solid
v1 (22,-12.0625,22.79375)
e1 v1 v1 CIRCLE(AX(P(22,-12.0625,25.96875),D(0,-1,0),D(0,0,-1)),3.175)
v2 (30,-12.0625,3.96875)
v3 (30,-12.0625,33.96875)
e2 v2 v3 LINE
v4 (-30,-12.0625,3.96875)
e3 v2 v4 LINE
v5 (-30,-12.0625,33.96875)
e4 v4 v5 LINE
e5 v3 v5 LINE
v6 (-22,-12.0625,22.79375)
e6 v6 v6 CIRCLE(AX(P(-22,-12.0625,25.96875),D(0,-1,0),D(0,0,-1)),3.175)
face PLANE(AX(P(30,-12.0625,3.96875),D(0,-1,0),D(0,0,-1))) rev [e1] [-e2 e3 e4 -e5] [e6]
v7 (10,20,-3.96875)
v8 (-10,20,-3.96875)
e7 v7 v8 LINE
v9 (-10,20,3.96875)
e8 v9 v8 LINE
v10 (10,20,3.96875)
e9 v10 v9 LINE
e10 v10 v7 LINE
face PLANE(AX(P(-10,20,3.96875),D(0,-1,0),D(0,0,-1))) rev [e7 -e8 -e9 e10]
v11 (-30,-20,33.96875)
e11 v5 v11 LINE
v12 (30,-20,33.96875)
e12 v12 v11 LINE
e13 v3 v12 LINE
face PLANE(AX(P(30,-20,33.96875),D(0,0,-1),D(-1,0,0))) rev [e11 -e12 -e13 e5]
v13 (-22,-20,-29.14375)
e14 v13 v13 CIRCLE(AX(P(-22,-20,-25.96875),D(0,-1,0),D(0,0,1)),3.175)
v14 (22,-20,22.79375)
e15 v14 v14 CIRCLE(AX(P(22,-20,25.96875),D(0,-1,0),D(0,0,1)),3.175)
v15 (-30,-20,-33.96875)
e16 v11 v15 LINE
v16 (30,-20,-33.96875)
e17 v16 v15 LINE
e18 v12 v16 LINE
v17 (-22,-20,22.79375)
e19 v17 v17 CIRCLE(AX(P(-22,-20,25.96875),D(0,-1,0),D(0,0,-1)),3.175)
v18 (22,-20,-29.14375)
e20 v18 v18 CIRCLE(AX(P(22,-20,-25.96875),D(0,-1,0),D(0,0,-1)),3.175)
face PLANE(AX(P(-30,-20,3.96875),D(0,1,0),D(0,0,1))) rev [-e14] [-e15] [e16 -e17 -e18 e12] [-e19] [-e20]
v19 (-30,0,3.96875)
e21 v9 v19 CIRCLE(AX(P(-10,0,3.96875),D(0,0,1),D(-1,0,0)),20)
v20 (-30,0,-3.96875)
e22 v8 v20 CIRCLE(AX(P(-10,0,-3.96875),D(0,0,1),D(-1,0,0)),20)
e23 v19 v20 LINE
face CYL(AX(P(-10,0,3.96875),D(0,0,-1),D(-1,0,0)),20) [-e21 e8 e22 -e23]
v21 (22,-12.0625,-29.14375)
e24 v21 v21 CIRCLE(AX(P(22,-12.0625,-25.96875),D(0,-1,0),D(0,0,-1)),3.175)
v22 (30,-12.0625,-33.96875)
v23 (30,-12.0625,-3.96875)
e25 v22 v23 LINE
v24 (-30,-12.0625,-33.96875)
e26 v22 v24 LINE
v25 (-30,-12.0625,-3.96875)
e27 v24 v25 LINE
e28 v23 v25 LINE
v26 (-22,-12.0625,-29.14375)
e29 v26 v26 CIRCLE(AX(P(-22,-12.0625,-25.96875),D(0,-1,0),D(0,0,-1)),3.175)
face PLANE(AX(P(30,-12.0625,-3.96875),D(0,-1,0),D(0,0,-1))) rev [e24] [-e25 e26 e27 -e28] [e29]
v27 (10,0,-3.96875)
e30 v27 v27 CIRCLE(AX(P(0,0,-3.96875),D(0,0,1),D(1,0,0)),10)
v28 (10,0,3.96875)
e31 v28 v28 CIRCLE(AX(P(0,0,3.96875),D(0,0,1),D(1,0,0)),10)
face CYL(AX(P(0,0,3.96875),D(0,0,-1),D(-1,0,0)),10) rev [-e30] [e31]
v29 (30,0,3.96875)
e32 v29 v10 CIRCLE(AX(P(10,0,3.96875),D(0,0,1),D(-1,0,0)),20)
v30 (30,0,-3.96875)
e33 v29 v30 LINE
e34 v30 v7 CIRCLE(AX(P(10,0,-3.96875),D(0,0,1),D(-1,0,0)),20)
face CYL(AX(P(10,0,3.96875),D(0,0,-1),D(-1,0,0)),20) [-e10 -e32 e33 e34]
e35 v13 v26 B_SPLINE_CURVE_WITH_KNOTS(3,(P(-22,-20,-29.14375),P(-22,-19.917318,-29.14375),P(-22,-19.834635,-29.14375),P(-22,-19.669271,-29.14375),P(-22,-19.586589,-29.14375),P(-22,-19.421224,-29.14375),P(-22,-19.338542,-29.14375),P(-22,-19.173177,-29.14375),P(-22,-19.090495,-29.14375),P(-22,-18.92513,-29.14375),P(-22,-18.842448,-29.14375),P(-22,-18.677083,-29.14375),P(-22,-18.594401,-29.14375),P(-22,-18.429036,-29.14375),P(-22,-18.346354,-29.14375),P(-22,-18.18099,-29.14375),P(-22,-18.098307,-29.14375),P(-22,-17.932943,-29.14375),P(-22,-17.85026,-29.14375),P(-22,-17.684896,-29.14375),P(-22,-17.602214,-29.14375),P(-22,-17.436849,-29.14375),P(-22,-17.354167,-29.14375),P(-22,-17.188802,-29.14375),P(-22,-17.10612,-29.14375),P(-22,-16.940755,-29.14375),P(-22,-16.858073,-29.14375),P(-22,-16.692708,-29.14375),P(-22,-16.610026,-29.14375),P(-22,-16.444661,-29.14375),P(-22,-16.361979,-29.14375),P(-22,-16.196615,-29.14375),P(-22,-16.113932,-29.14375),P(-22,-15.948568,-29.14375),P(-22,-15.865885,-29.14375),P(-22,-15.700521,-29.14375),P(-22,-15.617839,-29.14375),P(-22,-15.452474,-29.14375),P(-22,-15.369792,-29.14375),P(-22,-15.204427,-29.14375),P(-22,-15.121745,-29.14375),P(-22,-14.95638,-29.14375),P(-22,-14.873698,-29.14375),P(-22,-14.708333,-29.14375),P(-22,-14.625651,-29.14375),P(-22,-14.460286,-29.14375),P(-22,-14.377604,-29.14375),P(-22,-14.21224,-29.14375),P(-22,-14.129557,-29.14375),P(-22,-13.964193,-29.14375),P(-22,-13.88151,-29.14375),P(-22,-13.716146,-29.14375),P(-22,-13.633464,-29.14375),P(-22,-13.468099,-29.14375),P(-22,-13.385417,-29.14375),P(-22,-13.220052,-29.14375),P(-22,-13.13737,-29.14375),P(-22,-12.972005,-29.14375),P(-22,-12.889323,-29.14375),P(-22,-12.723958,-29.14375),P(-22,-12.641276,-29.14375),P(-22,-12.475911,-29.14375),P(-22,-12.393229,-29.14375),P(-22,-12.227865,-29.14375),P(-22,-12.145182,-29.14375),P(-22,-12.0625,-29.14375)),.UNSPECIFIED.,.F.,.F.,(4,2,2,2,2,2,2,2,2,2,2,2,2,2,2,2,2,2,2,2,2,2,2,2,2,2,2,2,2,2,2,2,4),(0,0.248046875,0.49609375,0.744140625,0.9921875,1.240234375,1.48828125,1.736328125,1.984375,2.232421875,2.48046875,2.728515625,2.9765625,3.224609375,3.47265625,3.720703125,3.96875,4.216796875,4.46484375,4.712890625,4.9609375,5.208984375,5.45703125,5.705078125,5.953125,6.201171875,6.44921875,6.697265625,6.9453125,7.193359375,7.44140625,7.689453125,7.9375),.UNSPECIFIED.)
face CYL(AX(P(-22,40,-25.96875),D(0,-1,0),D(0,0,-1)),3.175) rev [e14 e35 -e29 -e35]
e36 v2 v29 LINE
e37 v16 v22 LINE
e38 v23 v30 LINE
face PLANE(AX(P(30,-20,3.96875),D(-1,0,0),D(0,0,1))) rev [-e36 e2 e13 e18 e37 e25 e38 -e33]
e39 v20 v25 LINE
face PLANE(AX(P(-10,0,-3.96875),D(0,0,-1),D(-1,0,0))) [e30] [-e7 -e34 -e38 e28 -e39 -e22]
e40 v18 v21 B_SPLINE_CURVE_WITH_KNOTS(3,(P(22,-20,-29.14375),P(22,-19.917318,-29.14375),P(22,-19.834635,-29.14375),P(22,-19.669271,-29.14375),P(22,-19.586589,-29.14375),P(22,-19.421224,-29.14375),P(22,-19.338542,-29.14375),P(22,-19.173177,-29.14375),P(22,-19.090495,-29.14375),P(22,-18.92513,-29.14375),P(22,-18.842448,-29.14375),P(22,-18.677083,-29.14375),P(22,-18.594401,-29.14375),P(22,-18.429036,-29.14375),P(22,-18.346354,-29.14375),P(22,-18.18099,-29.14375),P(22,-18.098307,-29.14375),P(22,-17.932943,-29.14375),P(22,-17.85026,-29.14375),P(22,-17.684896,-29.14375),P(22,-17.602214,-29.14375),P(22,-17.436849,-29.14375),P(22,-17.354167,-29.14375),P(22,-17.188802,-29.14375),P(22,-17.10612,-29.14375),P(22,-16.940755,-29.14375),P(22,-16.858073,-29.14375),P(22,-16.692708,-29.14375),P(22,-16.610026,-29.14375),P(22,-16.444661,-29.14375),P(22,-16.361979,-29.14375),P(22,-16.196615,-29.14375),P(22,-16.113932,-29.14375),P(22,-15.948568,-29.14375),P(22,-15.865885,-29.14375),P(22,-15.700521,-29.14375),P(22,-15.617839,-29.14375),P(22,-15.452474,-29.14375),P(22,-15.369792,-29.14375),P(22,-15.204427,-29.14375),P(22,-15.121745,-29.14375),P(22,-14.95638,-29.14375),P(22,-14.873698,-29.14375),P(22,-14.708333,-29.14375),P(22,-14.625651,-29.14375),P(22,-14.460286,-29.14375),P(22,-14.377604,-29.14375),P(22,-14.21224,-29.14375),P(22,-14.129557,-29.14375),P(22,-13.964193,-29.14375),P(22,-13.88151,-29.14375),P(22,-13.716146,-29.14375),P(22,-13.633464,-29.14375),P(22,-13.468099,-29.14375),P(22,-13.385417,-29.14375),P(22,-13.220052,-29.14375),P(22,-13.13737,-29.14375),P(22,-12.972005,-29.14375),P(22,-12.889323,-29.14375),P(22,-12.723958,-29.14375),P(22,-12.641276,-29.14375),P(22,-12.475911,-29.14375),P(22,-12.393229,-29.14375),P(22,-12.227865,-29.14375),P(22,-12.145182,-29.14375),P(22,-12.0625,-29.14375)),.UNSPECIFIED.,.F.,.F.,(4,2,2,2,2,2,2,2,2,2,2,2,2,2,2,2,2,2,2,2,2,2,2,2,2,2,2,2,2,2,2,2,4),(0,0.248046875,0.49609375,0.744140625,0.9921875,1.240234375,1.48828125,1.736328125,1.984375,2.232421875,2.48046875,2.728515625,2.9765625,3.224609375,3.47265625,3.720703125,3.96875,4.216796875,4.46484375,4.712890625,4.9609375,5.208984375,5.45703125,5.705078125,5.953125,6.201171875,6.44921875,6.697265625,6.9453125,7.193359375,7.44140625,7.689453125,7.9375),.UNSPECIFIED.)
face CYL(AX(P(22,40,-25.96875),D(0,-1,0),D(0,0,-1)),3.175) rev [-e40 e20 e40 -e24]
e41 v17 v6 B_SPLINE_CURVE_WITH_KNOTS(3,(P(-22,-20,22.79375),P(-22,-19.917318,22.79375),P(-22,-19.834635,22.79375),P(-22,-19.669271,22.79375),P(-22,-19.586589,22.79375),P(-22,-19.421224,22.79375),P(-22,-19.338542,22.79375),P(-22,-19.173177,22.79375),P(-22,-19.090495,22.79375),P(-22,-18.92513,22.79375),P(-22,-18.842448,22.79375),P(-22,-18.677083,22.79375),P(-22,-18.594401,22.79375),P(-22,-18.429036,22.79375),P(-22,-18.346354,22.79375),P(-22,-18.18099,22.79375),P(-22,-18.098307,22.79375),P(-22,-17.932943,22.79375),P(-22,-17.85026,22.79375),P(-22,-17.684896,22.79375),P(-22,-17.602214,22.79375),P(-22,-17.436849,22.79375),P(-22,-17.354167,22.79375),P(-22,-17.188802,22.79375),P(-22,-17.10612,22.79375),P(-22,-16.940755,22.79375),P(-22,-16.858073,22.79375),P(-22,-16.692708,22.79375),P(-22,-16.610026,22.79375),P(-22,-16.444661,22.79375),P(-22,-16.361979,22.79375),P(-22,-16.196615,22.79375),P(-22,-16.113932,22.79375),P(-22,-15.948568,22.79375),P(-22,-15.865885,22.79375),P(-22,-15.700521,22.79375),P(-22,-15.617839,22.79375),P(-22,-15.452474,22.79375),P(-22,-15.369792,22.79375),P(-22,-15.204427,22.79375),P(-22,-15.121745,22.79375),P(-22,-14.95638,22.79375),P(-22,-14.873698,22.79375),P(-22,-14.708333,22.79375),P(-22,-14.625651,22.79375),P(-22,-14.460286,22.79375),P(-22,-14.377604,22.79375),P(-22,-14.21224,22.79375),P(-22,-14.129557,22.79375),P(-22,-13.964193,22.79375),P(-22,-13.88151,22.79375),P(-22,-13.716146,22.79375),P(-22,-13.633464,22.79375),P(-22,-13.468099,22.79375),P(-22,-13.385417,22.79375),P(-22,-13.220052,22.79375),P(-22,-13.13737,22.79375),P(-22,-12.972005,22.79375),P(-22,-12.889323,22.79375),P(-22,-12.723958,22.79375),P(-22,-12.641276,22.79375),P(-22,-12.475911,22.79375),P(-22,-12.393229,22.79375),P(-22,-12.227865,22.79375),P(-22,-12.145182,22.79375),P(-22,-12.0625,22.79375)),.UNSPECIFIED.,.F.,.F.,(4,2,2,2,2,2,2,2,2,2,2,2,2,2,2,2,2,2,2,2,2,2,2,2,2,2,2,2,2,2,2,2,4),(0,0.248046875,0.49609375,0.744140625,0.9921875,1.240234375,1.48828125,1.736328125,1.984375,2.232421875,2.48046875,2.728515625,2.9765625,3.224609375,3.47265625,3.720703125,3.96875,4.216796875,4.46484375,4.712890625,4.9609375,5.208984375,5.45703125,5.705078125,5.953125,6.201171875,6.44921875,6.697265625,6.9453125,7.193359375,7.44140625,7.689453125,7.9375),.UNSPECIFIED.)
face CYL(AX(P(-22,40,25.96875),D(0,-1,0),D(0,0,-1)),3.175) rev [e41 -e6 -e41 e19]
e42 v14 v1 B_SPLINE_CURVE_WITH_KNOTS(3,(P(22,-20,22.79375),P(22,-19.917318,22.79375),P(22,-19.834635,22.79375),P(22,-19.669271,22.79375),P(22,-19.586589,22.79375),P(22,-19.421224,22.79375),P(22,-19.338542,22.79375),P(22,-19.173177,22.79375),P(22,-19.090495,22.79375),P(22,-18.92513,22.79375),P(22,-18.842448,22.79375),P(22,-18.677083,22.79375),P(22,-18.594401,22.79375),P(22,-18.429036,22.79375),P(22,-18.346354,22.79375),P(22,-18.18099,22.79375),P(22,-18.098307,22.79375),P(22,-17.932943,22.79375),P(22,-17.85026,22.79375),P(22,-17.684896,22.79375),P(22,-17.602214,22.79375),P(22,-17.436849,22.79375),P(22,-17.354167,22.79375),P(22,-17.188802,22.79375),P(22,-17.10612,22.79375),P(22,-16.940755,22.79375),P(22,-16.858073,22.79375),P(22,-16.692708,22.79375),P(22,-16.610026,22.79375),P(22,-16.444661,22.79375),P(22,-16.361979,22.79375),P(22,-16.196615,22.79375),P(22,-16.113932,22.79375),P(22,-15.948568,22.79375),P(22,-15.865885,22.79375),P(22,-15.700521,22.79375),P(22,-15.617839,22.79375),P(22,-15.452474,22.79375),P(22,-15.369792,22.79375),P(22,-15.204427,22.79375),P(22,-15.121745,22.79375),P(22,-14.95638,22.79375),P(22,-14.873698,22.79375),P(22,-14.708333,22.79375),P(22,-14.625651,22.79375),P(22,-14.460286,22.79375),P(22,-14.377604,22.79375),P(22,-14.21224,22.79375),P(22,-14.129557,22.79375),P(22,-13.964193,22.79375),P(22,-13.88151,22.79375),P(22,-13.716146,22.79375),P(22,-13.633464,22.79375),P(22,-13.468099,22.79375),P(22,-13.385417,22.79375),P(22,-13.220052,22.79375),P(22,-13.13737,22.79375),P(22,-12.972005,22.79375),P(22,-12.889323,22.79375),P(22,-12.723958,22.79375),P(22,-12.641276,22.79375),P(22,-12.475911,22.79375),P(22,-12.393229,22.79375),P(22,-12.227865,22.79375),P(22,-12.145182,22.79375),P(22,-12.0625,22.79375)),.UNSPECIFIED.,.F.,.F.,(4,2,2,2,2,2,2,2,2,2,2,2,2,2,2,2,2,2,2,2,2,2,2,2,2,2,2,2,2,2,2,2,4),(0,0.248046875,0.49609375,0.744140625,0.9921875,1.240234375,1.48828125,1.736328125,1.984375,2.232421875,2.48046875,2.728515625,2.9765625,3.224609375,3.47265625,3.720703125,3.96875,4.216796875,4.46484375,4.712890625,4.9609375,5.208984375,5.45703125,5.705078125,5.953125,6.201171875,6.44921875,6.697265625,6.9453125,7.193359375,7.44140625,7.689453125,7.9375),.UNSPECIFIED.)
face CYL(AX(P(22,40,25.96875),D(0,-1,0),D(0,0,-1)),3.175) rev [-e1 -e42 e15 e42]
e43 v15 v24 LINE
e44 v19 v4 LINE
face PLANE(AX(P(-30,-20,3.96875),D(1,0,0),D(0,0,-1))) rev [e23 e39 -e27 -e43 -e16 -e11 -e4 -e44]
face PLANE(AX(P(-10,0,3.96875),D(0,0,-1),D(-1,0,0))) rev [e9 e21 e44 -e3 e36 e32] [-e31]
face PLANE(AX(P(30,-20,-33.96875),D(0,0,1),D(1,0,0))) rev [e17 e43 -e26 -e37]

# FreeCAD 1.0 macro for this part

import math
import FreeCAD as App
import Part
import Sketcher
from FreeCAD import Vector
Q = App.Units.Quantity


def add_polygon(sketch, points):
    """Adds a closed chain of lines whose ends are joined by coincident constraints."""
    first, n = sketch.GeometryCount, len(points)
    for a, b in zip(points, points[1:] + points[:1]):
        sketch.addGeometry(Part.LineSegment(App.Vector(*a, 0), App.Vector(*b, 0)), False)
    for i in range(n):
        sketch.addConstraint(Sketcher.Constraint("Coincident", first + i, 2, first + (i + 1) % n, 1))

doc = App.newDocument("Part")
body = doc.addObject("PartDesign::Body", "Body")

# Sketch on XY plane
sketch1 = doc.addObject("Sketcher::SketchObject", "Sketch")
body.addObject(sketch1)
sketch1.AttachmentSupport = (doc.XY_Plane, [""])
sketch1.MapMode = "FlatFace"
sketch1.addGeometry([
    Part.LineSegment(Vector(-30, -20, 0), Vector(30, -20, 0)),  # 0
    Part.LineSegment(Vector(30, -20, 0), Vector(30, 0, 0)),  # 1
    Part.ArcOfCircle(Part.Circle(Vector(10, 0, 0), Vector(0, 0, 1), 20), math.radians(0), math.radians(90)),  # 2
    Part.LineSegment(Vector(10, 20, 0), Vector(-10, 20, 0)),  # 3
    Part.ArcOfCircle(Part.Circle(Vector(-10, 0, 0), Vector(0, 0, 1), 20), math.radians(90), math.radians(180)),  # 4
    Part.LineSegment(Vector(-30, 0, 0), Vector(-30, -20, 0)),  # 5
    Part.Circle(Vector(0, 0, 0), Vector(0, 0, 1), 10),  # 6
], False)
sketch1.addConstraint([
    Sketcher.Constraint("Coincident", 0, 2, 1, 1),
    Sketcher.Constraint("Tangent", 1, 2, 2, 1),
    Sketcher.Constraint("Tangent", 2, 2, 3, 1),
    Sketcher.Constraint("Tangent", 3, 2, 4, 1),
    Sketcher.Constraint("Tangent", 4, 2, 5, 1),
    Sketcher.Constraint("Coincident", 5, 2, 0, 1),
    Sketcher.Constraint("Horizontal", 0),
    Sketcher.Constraint("Vertical", 1),
    Sketcher.Constraint("Horizontal", 3),
    Sketcher.Constraint("Vertical", 5),
    Sketcher.Constraint("Coincident", 6, 3, -1, 1),
    Sketcher.Constraint("Equal", 2, 4),
    Sketcher.Constraint("Symmetric", 2, 3, 4, 3, -1, 1),
    Sketcher.Constraint("Equal", 3, 1),
    Sketcher.Constraint("Diameter", 6, Q("20 mm")),
    Sketcher.Constraint("Radius", 2, Q("20 mm")),
    Sketcher.Constraint("DistanceX", 0, 1, 0, 2, Q("60 mm")),
])
pad1 = doc.addObject("PartDesign::Pad", "Pad")
body.addObject(pad1)
pad1.Profile = sketch1
pad1.Length = 7.9375
pad1.Midplane = True

# Sketch on YZ plane
sketch2 = doc.addObject("Sketcher::SketchObject", "Sketch001")
body.addObject(sketch2)
sketch2.AttachmentSupport = (doc.YZ_Plane, [""])
sketch2.MapMode = "FlatFace"
add_polygon(sketch2, [(-12, 34), (-20, 34), (-20, 4), (-12, 4)])  # lines 0-3
add_polygon(sketch2, [(-12, -4), (-20, -4), (-20, -34), (-12, -34)])  # lines 4-7
sketch2.addConstraint([
    Sketcher.Constraint("Horizontal", 0),
    Sketcher.Constraint("Vertical", 1),
    Sketcher.Constraint("Horizontal", 2),
    Sketcher.Constraint("Vertical", 3),
    Sketcher.Constraint("Horizontal", 4),
    Sketcher.Constraint("Vertical", 5),
    Sketcher.Constraint("Horizontal", 6),
    Sketcher.Constraint("Vertical", 7),
    Sketcher.Constraint("Symmetric", 1, 2, 4, 2, -1),
    Sketcher.Constraint("Symmetric", 3, 2, 6, 2, -1),
    Sketcher.Constraint("DistanceY", 1, 2, 1, 1, Q("30 mm")),
    Sketcher.Constraint("DistanceX", 0, 2, -1, 1, Q("20 mm")),
    Sketcher.Constraint("DistanceX", 0, 2, 0, 1, Q("7.9375 mm")),
    Sketcher.Constraint("DistanceY", 4, 2, 1, 2, Q("7.9375 mm")),
])
pad2 = doc.addObject("PartDesign::Pad", "Pad001")
body.addObject(pad2)
pad2.Profile = sketch2
pad2.Length = 60
pad2.Midplane = True

# Sketch on XZ plane
sketch3 = doc.addObject("Sketcher::SketchObject", "Sketch002")
body.addObject(sketch3)
sketch3.AttachmentSupport = (doc.XZ_Plane, [""])
sketch3.MapMode = "FlatFace"
sketch3.AttachmentOffset = App.Placement(Vector(0, 0, 20), App.Rotation())
sketch3.addGeometry([
    Part.Circle(Vector(-22, 26, 0), Vector(0, 0, 1), 3.2),
    Part.Circle(Vector(22, 26, 0), Vector(0, 0, 1), 3.2),
    Part.Circle(Vector(22, -26, 0), Vector(0, 0, 1), 3.2),
    Part.Circle(Vector(-22, -26, 0), Vector(0, 0, 1), 3.2),
], False)
sketch3.addConstraint([
    Sketcher.Constraint("Equal", 0, 1),
    Sketcher.Constraint("Equal", 1, 2),
    Sketcher.Constraint("Equal", 2, 3),
    Sketcher.Constraint("Symmetric", 0, 3, 2, 3, -1, 1),
    Sketcher.Constraint("Symmetric", 1, 3, 3, 3, -1, 1),
    Sketcher.Constraint("Symmetric", 0, 3, 1, 3, -2),
    Sketcher.Constraint("Diameter", 0, Q("6.35 mm")),
    Sketcher.Constraint("DistanceX", 0, 3, -1, 1, Q("22 mm")),
    Sketcher.Constraint("DistanceY", 2, 3, 1, 3, Q("51.9375 mm")),
])
pocket1 = doc.addObject("PartDesign::Pocket", "Pocket")
body.addObject(pocket1)
pocket1.Profile = sketch3
pocket1.Length = 60

doc.recompute()
